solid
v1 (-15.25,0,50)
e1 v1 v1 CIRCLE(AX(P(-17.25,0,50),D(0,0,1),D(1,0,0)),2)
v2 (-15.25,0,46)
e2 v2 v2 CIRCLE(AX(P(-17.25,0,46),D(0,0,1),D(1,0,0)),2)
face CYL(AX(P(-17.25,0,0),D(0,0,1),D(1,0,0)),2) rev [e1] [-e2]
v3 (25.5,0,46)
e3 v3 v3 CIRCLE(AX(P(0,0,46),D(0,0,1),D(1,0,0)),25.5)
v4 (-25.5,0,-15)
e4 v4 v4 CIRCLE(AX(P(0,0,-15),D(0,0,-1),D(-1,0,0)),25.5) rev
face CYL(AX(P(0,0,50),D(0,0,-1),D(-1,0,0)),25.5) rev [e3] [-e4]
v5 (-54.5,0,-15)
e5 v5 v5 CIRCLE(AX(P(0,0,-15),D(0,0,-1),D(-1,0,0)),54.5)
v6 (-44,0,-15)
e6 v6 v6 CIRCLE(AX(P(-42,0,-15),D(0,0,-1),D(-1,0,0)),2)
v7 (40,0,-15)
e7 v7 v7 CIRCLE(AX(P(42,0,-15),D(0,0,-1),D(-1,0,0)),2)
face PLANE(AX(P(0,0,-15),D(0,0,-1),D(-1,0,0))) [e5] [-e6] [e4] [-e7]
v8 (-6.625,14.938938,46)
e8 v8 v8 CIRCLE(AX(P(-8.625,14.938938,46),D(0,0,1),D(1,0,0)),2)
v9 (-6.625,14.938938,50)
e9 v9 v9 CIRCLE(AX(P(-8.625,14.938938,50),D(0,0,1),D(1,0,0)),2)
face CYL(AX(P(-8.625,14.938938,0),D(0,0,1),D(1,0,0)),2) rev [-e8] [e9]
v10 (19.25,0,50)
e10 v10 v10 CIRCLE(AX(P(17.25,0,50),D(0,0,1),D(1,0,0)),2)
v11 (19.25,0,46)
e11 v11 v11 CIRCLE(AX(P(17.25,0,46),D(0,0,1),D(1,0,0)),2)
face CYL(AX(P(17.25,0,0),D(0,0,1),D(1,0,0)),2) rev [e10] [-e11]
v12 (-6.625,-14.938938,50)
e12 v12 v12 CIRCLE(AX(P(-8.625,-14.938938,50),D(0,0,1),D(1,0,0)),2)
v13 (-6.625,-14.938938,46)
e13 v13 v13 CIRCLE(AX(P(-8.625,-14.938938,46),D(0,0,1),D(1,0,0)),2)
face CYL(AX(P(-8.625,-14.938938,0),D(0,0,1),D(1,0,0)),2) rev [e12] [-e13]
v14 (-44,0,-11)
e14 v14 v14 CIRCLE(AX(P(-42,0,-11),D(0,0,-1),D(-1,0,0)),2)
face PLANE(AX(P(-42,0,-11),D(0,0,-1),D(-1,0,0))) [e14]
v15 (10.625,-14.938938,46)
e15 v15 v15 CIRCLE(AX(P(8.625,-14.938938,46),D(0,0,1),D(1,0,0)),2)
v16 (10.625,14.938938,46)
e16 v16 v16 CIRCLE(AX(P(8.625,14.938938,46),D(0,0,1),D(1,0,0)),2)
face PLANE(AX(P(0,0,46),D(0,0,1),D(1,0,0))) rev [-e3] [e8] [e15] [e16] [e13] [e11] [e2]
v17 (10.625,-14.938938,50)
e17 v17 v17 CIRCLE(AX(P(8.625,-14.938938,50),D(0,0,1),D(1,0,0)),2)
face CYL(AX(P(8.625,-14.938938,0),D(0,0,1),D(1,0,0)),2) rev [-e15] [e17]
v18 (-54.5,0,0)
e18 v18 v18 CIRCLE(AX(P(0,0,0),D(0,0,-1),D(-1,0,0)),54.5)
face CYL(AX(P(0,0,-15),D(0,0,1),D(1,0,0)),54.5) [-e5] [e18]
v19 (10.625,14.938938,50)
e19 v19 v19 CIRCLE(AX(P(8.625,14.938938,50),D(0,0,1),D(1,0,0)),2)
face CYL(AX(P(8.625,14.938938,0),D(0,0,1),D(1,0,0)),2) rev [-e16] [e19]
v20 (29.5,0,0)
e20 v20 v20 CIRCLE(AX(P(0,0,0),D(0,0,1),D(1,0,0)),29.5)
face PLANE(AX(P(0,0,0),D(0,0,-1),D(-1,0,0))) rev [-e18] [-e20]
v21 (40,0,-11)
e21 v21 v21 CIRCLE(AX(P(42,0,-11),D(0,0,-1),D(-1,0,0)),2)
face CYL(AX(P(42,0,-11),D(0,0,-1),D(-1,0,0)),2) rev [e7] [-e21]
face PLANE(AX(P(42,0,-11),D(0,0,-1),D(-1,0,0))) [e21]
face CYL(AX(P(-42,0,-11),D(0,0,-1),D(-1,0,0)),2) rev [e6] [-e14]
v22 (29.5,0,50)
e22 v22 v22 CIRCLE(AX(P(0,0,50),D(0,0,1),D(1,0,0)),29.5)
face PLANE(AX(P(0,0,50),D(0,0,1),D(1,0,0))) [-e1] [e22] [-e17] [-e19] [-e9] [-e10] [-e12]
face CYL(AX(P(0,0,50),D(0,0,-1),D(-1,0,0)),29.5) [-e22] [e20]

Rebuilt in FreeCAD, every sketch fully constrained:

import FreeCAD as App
import Part
import Sketcher

V = App.Vector


def faces_at(feature, points):
    """Names of the faces that lie closest to the given points."""
    faces = feature.Shape.Faces
    near = lambda p: min(range(len(faces)), key=lambda i: faces[i].distToShape(Part.Vertex(*p))[0])
    return sorted({f"Face{near(p) + 1}" for p in points})

doc = App.newDocument("Part")
body = doc.addObject("PartDesign::Body", "Body")

# Sketch on XY plane
sketch1 = doc.addObject("Sketcher::SketchObject", "Sketch")
body.addObject(sketch1)
sketch1.AttachmentSupport = (doc.XY_Plane, [""])
sketch1.MapMode = "FlatFace"
sketch1.addGeometry(Part.Circle(V(0, 0, 0), V(0, 0, 1), 30), False)
sketch1.addConstraint(Sketcher.Constraint("Coincident", 0, 3, -1, 1))
sketch1.addConstraint(Sketcher.Constraint("Diameter", 0, 59.0))
pad1 = doc.addObject("PartDesign::Pad", "Pad")
body.addObject(pad1)
pad1.Profile = sketch1
pad1.Length = 50
doc.recompute()

thickness = doc.addObject("PartDesign::Thickness", "Thickness")
body.addObject(thickness)
thickness.Base = (pad1, faces_at(pad1, [(0, 0, 0)]))
thickness.Value = 4
thickness.Reversed = True
thickness.Join = "Intersection"

# Sketch on XY plane
sketch2 = doc.addObject("Sketcher::SketchObject", "Sketch001")
body.addObject(sketch2)
sketch2.AttachmentSupport = (doc.XY_Plane, [""])
sketch2.MapMode = "FlatFace"
sketch2.AttachmentOffset = App.Placement(V(0, 0, 50), App.Rotation())
sketch2.addGeometry(Part.Circle(V(-17.2, 0, 0), V(0, 0, 1), 2), False)
sketch2.addGeometry(Part.Circle(V(-8.6, 14.9, 0), V(0, 0, 1), 2), False)
sketch2.addGeometry(Part.Circle(V(8.6, 14.9, 0), V(0, 0, 1), 2), False)
sketch2.addGeometry(Part.Circle(V(17.2, 0, 0), V(0, 0, 1), 2), False)
sketch2.addGeometry(Part.Circle(V(8.6, -14.9, 0), V(0, 0, 1), 2), False)
sketch2.addGeometry(Part.Circle(V(-8.6, -14.9, 0), V(0, 0, 1), 2), False)
sketch2.addConstraint(Sketcher.Constraint("Equal", 0, 1))
sketch2.addConstraint(Sketcher.Constraint("Equal", 1, 2))
sketch2.addConstraint(Sketcher.Constraint("Equal", 2, 3))
sketch2.addConstraint(Sketcher.Constraint("Equal", 3, 4))
sketch2.addConstraint(Sketcher.Constraint("Equal", 4, 5))
sketch2.addConstraint(Sketcher.Constraint("Symmetric", 0, 3, 3, 3, -1, 1))
sketch2.addConstraint(Sketcher.Constraint("Symmetric", 1, 3, 4, 3, -1, 1))
sketch2.addConstraint(Sketcher.Constraint("Symmetric", 2, 3, 5, 3, -1, 1))
sketch2.addConstraint(Sketcher.Constraint("Symmetric", 1, 3, 2, 3, -2))
sketch2.addConstraint(Sketcher.Constraint("PointOnObject", 0, 3, -1))
sketch2.addConstraint(Sketcher.Constraint("Diameter", 0, 4.0))
sketch2.addConstraint(Sketcher.Constraint("DistanceX", 0, 3, 3, 3, 34.5))
sketch2.addConstraint(Sketcher.Constraint("DistanceX", 1, 3, 2, 3, 17.25))
sketch2.addConstraint(Sketcher.Constraint("DistanceY", -1, 1, 1, 3, 14.938938))
pocket1 = doc.addObject("PartDesign::Pocket", "Pocket")
body.addObject(pocket1)
pocket1.Profile = sketch2
pocket1.Type = "ThroughAll"

# Sketch on XY plane
sketch3 = doc.addObject("Sketcher::SketchObject", "Sketch002")
body.addObject(sketch3)
sketch3.AttachmentSupport = (doc.XY_Plane, [""])
sketch3.MapMode = "FlatFace"
sketch3.addGeometry(Part.Circle(V(0, 0, 0), V(0, 0, 1), 54), False)
sketch3.addGeometry(Part.Circle(V(0, 0, 0), V(0, 0, 1), 26), False)
sketch3.addConstraint(Sketcher.Constraint("Coincident", 0, 3, -1, 1))
sketch3.addConstraint(Sketcher.Constraint("Coincident", 1, 3, -1, 1))
sketch3.addConstraint(Sketcher.Constraint("Diameter", 0, 109.0))
sketch3.addConstraint(Sketcher.Constraint("Diameter", 1, 51.0))
pad2 = doc.addObject("PartDesign::Pad", "Pad001")
body.addObject(pad2)
pad2.Profile = sketch3
pad2.Length = 15
pad2.Reversed = True

# Sketch on XY plane
sketch4 = doc.addObject("Sketcher::SketchObject", "Sketch003")
body.addObject(sketch4)
sketch4.AttachmentSupport = (doc.XY_Plane, [""])
sketch4.MapMode = "FlatFace"
sketch4.AttachmentOffset = App.Placement(V(0, 0, -15), App.Rotation())
sketch4.addGeometry(Part.Circle(V(42, 0, 0), V(0, 0, 1), 2), False)
sketch4.addGeometry(Part.Circle(V(-42, 0, 0), V(0, 0, 1), 2), False)
sketch4.addConstraint(Sketcher.Constraint("Equal", 0, 1))
sketch4.addConstraint(Sketcher.Constraint("Symmetric", 0, 3, 1, 3, -1, 1))
sketch4.addConstraint(Sketcher.Constraint("PointOnObject", 0, 3, -1))
sketch4.addConstraint(Sketcher.Constraint("Diameter", 0, 4.0))
sketch4.addConstraint(Sketcher.Constraint("DistanceX", -1, 1, 0, 3, 42.0))
pocket2 = doc.addObject("PartDesign::Pocket", "Pocket001")
body.addObject(pocket2)
pocket2.Profile = sketch4
pocket2.Length = 4
pocket2.Reversed = True

doc.recompute()
